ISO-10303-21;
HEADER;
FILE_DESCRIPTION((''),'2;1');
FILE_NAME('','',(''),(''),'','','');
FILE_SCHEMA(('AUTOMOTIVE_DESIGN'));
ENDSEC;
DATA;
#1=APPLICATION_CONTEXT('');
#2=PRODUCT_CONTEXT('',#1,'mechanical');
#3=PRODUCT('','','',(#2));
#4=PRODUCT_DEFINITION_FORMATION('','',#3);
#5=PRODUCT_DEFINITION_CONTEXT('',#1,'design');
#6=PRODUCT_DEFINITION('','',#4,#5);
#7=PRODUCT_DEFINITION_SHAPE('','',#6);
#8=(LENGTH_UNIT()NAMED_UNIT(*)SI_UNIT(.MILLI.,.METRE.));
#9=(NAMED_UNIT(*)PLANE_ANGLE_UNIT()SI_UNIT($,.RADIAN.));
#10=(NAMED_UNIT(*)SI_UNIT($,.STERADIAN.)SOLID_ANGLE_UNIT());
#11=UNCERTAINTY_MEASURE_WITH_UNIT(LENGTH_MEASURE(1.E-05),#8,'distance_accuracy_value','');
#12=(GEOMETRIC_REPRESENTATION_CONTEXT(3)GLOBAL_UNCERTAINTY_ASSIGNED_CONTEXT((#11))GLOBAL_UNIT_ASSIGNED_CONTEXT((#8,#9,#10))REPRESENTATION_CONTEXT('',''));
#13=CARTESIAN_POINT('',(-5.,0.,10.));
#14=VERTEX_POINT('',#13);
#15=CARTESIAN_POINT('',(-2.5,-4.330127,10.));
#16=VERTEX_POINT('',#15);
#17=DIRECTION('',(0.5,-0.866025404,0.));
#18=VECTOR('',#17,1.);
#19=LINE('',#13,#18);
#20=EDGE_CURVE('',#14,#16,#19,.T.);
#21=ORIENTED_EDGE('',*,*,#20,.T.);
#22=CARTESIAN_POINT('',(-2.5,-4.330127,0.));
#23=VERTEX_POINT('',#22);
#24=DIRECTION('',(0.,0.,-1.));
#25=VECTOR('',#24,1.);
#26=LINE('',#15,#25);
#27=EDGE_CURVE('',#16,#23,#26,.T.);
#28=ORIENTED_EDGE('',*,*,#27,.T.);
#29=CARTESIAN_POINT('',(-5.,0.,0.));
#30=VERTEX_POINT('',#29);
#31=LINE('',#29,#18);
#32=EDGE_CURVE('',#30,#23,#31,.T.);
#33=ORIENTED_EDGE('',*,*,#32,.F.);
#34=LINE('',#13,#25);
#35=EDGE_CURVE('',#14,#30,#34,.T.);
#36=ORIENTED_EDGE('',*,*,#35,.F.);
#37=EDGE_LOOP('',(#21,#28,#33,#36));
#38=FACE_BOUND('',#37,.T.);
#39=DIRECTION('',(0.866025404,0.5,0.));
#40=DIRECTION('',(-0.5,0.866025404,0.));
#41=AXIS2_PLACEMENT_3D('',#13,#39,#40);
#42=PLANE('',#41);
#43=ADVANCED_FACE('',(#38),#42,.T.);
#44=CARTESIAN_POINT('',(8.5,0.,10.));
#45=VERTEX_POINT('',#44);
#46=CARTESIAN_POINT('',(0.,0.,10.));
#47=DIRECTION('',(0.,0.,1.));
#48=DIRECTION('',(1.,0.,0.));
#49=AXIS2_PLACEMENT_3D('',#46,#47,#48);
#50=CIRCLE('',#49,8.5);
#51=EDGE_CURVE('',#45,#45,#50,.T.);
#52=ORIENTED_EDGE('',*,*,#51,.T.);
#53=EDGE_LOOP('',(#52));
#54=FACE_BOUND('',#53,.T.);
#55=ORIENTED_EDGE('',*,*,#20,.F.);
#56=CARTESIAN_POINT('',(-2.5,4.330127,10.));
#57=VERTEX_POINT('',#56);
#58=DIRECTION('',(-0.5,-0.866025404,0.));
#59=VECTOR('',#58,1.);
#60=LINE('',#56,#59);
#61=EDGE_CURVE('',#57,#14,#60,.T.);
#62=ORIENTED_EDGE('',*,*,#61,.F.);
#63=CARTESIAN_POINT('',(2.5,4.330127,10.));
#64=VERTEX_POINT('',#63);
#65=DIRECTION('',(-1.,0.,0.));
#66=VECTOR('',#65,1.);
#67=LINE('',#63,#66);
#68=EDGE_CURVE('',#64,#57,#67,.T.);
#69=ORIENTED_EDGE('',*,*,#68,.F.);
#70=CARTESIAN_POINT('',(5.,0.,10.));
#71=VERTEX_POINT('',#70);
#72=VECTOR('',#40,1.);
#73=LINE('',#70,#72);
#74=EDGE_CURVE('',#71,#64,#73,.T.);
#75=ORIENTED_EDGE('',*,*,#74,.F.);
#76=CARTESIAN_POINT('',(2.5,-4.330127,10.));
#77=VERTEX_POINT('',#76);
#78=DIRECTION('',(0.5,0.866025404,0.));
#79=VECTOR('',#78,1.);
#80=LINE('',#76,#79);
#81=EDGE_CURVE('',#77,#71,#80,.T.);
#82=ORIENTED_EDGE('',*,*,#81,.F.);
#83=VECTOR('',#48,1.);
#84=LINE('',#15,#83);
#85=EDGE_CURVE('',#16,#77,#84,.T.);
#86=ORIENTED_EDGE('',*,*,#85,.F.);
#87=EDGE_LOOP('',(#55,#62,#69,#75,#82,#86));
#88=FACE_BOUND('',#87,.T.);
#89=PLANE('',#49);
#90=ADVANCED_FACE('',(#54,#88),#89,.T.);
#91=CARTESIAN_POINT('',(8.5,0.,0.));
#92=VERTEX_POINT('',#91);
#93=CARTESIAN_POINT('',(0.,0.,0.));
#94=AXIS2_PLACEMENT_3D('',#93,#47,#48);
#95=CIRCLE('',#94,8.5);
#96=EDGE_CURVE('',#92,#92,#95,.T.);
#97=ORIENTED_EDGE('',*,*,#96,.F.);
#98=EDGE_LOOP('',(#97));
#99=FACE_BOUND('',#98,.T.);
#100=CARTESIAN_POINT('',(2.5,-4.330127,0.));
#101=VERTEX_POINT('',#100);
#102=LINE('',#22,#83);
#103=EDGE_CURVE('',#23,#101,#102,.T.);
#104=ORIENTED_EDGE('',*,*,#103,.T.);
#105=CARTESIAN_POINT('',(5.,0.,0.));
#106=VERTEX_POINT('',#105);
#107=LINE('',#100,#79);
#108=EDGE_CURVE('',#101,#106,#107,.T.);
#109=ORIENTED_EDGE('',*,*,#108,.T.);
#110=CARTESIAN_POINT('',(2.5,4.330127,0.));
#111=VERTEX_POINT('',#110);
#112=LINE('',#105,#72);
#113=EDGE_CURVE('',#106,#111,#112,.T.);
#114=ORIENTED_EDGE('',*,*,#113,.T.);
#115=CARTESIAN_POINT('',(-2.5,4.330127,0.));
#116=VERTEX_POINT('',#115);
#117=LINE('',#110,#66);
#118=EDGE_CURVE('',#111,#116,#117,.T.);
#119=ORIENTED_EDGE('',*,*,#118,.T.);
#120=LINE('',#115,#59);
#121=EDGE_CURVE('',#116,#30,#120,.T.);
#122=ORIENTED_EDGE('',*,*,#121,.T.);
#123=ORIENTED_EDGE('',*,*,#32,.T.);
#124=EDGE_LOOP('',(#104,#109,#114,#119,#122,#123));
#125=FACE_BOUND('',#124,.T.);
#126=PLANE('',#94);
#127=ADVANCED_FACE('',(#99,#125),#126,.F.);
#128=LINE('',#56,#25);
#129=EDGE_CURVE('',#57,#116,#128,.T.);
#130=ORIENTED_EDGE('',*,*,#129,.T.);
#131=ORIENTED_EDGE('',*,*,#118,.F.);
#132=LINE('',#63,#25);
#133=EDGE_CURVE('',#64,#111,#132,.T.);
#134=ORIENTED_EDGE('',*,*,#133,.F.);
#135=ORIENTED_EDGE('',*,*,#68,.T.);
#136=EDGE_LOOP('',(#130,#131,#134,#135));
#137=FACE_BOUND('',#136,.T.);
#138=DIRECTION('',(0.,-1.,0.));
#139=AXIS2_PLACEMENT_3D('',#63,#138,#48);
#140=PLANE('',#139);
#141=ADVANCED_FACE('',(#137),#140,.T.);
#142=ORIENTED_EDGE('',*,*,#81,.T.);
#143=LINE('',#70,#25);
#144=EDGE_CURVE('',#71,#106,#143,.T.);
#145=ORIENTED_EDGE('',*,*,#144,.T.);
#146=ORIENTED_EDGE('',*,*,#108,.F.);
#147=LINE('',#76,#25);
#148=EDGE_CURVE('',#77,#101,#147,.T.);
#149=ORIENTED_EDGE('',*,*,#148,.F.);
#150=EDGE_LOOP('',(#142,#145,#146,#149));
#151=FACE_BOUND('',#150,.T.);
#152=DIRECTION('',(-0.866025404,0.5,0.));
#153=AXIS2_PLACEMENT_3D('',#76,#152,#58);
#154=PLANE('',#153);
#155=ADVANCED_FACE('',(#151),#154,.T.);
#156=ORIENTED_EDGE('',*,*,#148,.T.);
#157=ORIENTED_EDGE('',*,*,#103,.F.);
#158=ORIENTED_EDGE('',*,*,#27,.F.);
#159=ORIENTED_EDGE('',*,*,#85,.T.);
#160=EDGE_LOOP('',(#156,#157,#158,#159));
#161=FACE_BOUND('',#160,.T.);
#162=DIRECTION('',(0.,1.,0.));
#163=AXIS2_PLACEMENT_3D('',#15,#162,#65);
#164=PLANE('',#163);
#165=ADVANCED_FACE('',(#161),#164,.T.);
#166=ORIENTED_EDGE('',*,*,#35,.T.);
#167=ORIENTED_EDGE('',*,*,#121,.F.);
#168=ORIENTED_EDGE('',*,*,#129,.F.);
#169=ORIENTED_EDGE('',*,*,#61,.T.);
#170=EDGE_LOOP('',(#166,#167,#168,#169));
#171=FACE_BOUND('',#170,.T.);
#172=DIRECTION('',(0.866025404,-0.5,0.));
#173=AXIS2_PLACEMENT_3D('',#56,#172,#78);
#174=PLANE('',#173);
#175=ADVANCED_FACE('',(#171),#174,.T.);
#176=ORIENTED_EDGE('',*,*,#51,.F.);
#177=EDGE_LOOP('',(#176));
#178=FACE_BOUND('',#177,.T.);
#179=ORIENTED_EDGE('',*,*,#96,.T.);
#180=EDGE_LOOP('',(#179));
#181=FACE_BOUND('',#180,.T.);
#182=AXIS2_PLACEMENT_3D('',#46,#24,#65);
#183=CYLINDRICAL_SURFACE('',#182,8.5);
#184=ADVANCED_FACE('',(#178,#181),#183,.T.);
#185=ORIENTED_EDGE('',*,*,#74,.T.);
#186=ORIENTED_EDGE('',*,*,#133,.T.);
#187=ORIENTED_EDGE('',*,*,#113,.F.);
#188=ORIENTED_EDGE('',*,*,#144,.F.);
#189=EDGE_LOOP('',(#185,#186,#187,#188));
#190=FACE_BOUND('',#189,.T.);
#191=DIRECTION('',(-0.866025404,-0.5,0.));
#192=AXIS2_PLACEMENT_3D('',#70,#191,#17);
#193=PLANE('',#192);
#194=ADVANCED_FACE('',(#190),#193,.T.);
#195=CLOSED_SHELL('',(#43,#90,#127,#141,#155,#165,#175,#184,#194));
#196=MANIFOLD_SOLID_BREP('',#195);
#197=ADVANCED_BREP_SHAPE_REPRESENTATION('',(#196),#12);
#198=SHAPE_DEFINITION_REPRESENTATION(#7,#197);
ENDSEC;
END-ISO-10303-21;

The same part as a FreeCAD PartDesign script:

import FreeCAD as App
import Part
import Sketcher
from FreeCAD import Vector
Q = App.Units.Quantity


def add_polygon(sketch, points):
    """Adds a closed chain of lines whose ends are joined by coincident constraints."""
    first, n = sketch.GeometryCount, len(points)
    for a, b in zip(points, points[1:] + points[:1]):
        sketch.addGeometry(Part.LineSegment(App.Vector(*a, 0), App.Vector(*b, 0)), False)
    for i in range(n):
        sketch.addConstraint(Sketcher.Constraint("Coincident", first + i, 2, first + (i + 1) % n, 1))

doc = App.newDocument("Part")
params = doc.addObject("Spreadsheet::Sheet", "Params")
for row, (alias, value) in enumerate([
    ("sketch1_diameter", "17 mm"),
    ("sketch1_width", "5 mm"),
    ("sketch1_length", "5 mm"),
    ("pad1_length", "10 mm"),
], start=1):
    params.set(f"A{row}", alias)
    params.set(f"B{row}", "=" + value)
    params.setAlias(f"B{row}", alias)

body = doc.addObject("PartDesign::Body", "Body")

# Sketch on XY plane
sketch1 = body.newObject("Sketcher::SketchObject", "Sketch")
sketch1.AttachmentSupport = (doc.getObject("XY_Plane"), [""])
sketch1.MapMode = "FlatFace"
sketch1.addGeometry(Part.Circle(Vector(0, 0, 0), Vector(0, 0, 1), 8), False)  # 0
add_polygon(sketch1, [(5, 0), (2, -4), (-2, -4), (-5, 0), (-2, 4), (2, 4)])  # lines 1-6
sketch1.addConstraint([
    Sketcher.Constraint("Horizontal", 2),
    Sketcher.Constraint("Horizontal", 5),
    Sketcher.Constraint("Coincident", 0, 3, -1, 1),
    Sketcher.Constraint("Symmetric", 1, 2, 4, 2, -1, 1),
    Sketcher.Constraint("Symmetric", 3, 2, 6, 2, -1, 1),
    Sketcher.Constraint("PointOnObject", 3, 2, -1),
    Sketcher.Constraint("Parallel", 3, 6),
    Sketcher.Constraint("Vertical", 2, 2, 4, 2),
    Sketcher.Constraint("Diameter", 0, Q("17 mm")),
    Sketcher.Constraint("DistanceX", 2, 2, 2, 1, Q("5 mm")),
    Sketcher.Constraint("Angle", 1, Q("-120 deg")),
    Sketcher.Constraint("Distance", 1, Q("5 mm")),
])
sketch1.setExpression("Constraints[14]", "Params.sketch1_diameter")
sketch1.setExpression("Constraints[15]", "Params.sketch1_width")
sketch1.setExpression("Constraints[17]", "Params.sketch1_length")
pad1 = body.newObject("PartDesign::Pad", "Pad")
pad1.Profile = sketch1
pad1.setExpression("Length", "Params.pad1_length")

doc.recompute()
